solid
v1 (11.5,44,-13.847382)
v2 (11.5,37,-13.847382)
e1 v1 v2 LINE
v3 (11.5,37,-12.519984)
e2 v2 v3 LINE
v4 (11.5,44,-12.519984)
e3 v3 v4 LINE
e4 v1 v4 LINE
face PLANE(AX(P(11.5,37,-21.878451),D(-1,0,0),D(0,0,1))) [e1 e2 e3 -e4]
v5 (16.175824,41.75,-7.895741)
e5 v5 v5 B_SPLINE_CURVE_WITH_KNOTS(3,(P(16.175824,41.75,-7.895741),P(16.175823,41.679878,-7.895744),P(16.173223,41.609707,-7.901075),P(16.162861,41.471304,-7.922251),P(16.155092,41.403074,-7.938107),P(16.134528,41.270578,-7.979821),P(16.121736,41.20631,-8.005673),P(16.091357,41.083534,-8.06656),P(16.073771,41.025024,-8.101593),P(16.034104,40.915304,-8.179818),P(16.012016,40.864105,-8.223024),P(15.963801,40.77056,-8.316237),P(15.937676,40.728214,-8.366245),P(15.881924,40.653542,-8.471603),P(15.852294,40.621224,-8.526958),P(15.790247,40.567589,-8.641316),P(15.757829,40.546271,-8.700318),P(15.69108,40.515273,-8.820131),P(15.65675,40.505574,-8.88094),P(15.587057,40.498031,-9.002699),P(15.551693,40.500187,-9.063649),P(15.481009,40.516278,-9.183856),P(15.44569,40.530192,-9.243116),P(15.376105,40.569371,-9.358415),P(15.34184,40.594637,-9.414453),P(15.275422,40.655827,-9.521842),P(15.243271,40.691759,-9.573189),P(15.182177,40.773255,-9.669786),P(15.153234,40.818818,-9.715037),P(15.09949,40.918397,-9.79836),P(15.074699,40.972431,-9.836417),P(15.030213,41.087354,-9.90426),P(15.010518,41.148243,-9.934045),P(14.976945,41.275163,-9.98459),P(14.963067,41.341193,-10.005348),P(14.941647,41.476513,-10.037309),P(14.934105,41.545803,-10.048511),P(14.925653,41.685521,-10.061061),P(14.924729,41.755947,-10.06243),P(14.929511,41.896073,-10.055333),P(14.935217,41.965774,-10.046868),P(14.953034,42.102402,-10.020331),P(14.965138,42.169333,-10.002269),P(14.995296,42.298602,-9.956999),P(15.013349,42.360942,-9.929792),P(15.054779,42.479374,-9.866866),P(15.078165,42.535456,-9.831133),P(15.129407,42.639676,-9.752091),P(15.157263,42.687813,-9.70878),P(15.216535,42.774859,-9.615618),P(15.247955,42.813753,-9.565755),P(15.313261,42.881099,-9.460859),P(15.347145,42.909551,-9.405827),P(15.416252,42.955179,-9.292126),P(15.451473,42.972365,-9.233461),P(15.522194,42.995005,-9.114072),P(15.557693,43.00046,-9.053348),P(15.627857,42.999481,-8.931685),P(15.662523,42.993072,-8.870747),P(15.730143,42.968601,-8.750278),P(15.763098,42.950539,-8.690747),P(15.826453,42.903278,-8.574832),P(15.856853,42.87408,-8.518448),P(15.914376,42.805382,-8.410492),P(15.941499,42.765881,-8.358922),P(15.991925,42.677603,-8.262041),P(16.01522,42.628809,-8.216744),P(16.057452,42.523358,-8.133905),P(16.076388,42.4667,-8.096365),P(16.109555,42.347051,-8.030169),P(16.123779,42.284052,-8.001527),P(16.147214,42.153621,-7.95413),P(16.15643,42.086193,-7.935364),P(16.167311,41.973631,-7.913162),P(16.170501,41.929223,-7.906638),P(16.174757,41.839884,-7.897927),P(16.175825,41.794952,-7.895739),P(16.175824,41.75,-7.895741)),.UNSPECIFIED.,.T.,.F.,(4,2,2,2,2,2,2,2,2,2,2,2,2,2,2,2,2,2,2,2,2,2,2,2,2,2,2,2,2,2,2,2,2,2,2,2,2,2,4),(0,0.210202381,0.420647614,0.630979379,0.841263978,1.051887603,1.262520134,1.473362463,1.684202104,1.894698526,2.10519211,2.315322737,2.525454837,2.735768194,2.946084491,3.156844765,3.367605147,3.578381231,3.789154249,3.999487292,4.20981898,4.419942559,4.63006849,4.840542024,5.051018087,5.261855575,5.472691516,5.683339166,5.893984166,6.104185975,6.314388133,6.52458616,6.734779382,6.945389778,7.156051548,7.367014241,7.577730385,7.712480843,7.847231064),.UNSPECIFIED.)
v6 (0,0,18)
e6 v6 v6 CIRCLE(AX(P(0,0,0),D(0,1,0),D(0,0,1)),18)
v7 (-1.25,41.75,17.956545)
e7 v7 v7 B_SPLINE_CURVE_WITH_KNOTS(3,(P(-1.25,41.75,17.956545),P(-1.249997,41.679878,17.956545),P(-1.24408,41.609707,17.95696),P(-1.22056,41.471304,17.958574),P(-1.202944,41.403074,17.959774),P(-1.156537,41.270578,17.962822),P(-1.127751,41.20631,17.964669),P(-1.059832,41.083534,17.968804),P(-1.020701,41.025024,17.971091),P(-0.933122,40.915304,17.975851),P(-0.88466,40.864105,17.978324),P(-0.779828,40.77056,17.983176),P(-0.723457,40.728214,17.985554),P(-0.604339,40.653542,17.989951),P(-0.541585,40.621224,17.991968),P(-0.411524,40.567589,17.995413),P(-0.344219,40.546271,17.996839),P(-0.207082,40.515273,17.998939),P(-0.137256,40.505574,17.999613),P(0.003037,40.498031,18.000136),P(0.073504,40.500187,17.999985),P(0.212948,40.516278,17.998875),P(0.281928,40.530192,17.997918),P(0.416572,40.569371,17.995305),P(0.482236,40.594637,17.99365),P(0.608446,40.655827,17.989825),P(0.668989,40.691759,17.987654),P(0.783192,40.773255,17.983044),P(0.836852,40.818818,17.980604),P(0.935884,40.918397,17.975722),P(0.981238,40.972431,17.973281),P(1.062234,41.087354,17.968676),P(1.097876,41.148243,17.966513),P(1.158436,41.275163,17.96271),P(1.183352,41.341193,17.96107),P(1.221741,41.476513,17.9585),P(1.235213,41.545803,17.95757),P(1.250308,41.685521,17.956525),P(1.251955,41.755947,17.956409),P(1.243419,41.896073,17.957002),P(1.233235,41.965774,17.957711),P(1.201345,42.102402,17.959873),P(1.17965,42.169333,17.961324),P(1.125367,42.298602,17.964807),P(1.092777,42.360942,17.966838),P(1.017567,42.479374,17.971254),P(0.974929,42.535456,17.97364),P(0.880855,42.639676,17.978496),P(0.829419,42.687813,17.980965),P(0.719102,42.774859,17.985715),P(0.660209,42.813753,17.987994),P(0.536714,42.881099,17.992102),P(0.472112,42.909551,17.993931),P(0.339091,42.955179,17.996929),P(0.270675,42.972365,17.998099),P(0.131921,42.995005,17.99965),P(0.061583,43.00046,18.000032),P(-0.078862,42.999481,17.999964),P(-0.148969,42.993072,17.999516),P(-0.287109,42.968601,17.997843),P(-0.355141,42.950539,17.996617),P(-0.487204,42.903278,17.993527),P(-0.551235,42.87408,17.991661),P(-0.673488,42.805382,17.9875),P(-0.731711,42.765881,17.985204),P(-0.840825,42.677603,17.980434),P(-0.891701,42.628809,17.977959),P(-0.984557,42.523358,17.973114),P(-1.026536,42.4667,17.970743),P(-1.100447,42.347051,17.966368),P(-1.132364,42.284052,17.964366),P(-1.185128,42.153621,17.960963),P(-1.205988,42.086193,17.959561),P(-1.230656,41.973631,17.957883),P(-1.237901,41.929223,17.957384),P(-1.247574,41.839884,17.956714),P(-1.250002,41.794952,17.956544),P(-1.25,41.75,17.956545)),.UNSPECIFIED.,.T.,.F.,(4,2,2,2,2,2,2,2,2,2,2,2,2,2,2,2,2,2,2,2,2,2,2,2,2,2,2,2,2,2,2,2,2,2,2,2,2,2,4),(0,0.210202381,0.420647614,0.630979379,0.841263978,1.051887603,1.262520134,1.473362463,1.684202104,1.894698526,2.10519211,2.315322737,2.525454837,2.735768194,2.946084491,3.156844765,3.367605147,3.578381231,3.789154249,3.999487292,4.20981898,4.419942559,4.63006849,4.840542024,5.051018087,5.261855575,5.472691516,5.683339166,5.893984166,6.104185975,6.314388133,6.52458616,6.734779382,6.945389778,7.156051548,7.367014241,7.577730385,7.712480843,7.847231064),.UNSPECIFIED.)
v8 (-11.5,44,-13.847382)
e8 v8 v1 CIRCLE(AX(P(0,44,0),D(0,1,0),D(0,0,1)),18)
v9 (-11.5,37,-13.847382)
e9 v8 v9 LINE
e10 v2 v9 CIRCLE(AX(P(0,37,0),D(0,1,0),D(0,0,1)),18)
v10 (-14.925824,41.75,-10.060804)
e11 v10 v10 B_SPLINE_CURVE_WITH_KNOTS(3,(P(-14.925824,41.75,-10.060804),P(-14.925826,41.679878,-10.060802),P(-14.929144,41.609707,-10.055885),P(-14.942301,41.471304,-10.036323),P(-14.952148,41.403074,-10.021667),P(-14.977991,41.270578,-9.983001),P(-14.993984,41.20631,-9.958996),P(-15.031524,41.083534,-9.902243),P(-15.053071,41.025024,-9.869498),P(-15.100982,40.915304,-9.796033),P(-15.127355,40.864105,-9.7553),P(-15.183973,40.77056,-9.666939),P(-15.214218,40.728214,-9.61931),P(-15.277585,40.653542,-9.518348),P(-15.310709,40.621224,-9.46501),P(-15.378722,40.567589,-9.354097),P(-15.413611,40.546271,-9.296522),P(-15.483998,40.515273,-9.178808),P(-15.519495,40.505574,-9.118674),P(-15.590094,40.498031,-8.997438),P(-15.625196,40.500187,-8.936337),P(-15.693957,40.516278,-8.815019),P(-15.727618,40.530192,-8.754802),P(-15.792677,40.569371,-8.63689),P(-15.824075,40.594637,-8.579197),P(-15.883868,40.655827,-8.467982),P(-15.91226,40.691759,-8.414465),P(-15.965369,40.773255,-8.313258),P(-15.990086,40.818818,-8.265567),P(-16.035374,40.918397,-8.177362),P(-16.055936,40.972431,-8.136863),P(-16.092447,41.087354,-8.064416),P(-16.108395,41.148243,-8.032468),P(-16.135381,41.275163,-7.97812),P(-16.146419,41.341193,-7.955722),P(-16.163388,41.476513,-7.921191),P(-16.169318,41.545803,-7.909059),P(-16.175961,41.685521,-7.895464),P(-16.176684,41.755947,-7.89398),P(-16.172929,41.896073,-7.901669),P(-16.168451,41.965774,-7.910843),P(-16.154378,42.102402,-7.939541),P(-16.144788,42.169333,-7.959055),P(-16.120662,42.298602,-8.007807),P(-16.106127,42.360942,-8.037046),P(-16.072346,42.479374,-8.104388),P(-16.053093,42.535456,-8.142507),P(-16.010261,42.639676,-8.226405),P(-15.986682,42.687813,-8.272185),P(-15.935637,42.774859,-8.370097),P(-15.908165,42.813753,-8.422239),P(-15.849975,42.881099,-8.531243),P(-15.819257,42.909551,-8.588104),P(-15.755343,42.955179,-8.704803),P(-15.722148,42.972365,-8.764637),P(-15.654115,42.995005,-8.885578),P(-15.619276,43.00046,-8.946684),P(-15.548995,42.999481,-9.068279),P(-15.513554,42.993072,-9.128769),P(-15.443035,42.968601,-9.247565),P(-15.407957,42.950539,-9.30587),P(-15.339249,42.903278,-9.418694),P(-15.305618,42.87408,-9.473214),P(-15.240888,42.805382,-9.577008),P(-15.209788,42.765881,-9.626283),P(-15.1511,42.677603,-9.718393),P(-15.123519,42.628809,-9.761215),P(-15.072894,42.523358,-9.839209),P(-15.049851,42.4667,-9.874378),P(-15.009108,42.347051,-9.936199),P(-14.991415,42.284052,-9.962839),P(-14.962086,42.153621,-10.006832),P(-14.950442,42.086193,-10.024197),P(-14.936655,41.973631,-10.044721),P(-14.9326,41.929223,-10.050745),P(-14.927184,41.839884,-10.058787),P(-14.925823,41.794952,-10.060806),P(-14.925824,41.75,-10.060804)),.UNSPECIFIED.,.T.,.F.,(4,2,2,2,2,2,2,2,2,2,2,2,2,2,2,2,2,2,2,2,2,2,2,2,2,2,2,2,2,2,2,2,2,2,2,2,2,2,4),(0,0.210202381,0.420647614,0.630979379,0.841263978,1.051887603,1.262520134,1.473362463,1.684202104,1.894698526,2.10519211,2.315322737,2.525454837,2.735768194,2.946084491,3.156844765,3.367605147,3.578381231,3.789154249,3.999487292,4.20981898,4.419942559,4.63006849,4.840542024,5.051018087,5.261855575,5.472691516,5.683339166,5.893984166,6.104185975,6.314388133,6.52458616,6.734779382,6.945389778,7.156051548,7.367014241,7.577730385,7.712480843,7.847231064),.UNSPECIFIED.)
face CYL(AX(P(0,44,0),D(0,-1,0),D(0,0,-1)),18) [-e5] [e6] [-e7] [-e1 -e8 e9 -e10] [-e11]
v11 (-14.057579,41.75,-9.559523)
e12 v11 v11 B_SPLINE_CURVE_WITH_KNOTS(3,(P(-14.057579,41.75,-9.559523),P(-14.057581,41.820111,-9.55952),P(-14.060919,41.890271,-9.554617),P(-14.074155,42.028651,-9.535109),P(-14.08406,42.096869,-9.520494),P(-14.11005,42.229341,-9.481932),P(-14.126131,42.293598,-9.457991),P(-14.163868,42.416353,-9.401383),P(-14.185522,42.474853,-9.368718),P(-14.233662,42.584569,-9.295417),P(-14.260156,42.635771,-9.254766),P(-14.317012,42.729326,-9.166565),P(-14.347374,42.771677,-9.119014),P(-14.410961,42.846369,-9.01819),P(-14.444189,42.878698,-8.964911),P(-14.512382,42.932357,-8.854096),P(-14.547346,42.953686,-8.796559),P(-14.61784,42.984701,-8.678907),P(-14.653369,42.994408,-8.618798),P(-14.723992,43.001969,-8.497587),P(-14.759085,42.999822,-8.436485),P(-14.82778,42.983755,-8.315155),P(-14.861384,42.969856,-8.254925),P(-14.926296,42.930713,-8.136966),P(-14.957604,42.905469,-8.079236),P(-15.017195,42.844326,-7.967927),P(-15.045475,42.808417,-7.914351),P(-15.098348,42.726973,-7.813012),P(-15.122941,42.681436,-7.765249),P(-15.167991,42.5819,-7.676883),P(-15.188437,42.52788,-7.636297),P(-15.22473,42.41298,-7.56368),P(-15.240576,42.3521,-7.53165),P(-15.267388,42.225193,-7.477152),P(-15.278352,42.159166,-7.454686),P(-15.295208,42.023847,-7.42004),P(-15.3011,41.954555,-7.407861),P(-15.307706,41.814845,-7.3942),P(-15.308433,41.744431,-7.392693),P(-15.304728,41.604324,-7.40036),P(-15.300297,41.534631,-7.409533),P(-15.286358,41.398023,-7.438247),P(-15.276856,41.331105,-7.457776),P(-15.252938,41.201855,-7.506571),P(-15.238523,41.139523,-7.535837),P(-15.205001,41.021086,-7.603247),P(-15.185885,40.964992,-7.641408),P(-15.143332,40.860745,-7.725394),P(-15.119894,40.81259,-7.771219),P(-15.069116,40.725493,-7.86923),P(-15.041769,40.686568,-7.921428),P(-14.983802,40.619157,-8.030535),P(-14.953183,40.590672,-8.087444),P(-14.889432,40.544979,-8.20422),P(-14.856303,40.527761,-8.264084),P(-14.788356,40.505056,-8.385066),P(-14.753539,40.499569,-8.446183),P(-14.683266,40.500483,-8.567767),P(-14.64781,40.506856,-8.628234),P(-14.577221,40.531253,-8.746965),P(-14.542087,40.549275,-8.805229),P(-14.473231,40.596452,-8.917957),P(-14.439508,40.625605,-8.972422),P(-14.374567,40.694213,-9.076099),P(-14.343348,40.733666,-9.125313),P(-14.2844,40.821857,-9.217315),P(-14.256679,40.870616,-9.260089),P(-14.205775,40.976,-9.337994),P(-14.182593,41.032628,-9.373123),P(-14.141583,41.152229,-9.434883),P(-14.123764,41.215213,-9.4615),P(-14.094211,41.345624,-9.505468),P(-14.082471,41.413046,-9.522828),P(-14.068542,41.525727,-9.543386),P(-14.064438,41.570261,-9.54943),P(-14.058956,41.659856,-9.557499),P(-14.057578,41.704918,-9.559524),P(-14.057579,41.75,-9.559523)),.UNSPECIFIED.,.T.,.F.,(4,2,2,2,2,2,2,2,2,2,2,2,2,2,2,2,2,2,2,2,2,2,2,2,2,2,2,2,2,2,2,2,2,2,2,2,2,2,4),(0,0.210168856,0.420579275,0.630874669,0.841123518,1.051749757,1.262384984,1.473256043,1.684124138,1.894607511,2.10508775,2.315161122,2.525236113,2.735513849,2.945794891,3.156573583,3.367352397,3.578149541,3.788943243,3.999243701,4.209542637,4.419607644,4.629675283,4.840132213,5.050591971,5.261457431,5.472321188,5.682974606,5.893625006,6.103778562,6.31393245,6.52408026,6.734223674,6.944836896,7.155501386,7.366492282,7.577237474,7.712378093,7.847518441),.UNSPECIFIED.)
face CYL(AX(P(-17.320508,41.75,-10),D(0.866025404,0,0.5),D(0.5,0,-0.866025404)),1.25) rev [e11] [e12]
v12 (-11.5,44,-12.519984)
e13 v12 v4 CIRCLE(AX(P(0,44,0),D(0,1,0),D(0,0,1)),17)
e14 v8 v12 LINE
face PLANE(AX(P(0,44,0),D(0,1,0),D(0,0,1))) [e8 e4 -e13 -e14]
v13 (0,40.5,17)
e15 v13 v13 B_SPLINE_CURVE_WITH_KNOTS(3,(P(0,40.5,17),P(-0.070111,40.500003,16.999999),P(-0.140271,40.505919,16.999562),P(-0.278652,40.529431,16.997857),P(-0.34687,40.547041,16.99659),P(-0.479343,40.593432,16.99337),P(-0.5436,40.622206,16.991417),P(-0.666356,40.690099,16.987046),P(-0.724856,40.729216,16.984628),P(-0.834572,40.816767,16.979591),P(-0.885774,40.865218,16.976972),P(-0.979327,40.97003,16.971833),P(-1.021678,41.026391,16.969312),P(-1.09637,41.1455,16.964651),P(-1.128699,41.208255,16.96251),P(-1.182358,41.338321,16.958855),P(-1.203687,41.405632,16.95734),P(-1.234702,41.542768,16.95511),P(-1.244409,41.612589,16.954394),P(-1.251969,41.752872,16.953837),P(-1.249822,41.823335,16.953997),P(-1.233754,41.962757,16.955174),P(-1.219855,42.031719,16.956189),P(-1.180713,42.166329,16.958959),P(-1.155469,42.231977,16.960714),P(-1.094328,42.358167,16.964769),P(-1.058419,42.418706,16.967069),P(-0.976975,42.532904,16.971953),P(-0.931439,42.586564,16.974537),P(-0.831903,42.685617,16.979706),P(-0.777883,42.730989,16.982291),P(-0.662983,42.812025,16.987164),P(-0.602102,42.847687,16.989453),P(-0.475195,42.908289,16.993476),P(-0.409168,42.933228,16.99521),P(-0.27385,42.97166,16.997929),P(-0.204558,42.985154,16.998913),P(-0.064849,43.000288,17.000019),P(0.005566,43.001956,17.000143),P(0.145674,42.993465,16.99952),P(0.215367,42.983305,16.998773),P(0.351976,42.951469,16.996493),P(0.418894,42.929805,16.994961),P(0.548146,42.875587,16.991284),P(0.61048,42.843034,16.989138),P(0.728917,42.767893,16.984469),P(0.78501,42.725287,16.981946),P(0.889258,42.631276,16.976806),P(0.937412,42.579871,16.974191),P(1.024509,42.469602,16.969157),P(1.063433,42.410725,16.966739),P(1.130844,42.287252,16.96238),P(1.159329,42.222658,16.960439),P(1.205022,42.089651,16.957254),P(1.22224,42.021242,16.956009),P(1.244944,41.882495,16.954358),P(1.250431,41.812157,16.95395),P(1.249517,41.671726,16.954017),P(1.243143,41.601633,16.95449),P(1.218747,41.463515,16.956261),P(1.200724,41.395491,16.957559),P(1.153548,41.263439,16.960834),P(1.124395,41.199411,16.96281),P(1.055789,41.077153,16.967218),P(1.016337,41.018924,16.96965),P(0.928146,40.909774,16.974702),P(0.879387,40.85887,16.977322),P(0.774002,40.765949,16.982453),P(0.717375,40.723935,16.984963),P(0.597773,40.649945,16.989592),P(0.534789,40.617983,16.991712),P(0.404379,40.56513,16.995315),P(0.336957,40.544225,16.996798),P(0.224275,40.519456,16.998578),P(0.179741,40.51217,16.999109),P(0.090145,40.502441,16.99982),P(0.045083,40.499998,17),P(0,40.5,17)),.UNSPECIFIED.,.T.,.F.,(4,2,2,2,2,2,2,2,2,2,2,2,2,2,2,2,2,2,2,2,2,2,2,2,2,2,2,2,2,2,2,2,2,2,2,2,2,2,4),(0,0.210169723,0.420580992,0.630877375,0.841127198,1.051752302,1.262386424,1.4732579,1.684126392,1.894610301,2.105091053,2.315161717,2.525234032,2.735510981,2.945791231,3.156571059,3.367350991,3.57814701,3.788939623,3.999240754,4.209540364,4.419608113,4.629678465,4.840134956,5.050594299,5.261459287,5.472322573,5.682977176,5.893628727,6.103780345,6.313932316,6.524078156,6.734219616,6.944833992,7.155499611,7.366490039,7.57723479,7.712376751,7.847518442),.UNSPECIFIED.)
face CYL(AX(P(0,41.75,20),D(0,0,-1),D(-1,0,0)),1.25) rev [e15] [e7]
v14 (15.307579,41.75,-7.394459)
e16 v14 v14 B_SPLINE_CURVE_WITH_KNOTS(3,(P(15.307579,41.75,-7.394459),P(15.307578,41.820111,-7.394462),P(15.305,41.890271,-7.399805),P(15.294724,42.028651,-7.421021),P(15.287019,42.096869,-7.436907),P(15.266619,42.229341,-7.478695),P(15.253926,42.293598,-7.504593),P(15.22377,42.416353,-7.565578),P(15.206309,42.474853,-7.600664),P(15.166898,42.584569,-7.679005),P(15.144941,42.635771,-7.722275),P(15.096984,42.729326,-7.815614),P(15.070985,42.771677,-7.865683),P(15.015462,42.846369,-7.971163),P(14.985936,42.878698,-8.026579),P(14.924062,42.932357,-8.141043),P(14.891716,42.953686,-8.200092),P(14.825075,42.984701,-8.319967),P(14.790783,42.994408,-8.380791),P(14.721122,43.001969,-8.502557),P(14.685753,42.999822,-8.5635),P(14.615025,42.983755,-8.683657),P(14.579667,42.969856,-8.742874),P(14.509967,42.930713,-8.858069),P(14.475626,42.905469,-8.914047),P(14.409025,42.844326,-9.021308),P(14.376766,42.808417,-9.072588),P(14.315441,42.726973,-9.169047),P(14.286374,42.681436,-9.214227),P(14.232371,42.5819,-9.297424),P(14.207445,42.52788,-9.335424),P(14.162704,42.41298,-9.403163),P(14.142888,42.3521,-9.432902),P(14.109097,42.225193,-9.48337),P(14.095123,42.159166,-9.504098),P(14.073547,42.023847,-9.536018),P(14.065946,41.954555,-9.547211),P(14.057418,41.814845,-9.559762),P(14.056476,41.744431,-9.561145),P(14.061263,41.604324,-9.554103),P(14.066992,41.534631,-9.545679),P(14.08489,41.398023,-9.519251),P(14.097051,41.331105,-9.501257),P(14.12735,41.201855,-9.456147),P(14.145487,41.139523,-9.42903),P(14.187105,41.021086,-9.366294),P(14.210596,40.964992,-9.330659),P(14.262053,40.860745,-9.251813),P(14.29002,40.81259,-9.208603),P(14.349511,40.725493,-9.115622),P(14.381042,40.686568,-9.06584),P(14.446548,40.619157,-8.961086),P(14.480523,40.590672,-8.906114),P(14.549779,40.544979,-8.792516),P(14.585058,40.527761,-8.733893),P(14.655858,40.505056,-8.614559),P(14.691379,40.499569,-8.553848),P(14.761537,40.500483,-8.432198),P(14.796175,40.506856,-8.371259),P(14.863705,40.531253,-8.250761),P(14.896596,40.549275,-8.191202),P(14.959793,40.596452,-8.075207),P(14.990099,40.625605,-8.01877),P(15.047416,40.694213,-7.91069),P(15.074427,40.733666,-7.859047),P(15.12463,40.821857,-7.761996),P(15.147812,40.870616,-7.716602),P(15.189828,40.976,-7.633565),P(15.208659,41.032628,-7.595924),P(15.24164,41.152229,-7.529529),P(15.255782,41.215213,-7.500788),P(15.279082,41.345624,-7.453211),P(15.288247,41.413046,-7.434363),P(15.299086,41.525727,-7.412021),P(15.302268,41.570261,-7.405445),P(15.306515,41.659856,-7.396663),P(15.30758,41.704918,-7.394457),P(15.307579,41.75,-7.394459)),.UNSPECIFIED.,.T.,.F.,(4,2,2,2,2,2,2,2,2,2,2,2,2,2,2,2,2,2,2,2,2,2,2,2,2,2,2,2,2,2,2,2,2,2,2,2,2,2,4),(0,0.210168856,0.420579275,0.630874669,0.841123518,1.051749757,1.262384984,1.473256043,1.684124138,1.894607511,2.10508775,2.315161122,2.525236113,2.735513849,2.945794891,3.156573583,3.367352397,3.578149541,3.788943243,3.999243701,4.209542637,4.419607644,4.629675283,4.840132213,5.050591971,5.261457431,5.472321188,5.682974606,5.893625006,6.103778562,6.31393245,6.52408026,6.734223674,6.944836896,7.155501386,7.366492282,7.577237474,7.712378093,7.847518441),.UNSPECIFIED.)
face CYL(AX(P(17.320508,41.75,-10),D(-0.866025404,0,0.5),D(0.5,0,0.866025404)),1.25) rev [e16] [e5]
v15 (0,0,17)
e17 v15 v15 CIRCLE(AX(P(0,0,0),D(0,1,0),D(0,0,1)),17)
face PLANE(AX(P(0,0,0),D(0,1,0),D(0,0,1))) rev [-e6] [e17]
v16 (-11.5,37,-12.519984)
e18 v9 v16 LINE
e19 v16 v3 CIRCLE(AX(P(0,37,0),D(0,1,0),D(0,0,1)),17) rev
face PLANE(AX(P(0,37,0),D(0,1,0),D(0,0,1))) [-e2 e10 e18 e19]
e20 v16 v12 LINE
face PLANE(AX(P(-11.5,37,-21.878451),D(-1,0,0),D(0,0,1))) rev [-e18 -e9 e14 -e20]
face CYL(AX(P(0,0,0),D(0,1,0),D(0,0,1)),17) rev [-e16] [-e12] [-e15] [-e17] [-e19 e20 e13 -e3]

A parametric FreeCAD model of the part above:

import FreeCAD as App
import Part
import Sketcher
from FreeCAD import Vector

doc = App.newDocument("Part")
params = doc.addObject("Spreadsheet::Sheet", "Params")
for row, (alias, value) in enumerate([
    ("sketch1_diameter", "36 mm"),
    ("pad1_length", "44 mm"),
    ("sketch2_diameter", "34 mm"),
    ("sketch3_width", "23 mm"),
    ("pocket2_length", "7 mm"),
    ("sketch4_diameter", "2.5 mm"),
    ("pocket3_length", "20 mm"),
], start=1):
    params.set(f"A{row}", alias)
    params.set(f"B{row}", "=" + value)
    params.setAlias(f"B{row}", alias)

body = doc.addObject("PartDesign::Body", "Body")

# Sketch on XZ plane
sketch1 = doc.addObject("Sketcher::SketchObject", "Sketch")
body.addObject(sketch1)
sketch1.AttachmentSupport = (doc.XZ_Plane, [""])
sketch1.MapMode = "FlatFace"
sketch1.addGeometry(Part.Circle(Vector(0, 0, 0), Vector(0, 0, 1), 18), False)
sketch1.addConstraint([
    Sketcher.Constraint("Coincident", 0, 3, -1, 1),
    Sketcher.Constraint("Diameter", 0, 36.0),
])
sketch1.setExpression("Constraints[1]", "Params.sketch1_diameter")
pad1 = doc.addObject("PartDesign::Pad", "Pad")
body.addObject(pad1)
pad1.Profile = sketch1
pad1.setExpression("Length", "Params.pad1_length")
pad1.Reversed = True

# Sketch on XZ plane
sketch2 = doc.addObject("Sketcher::SketchObject", "Sketch001")
body.addObject(sketch2)
sketch2.AttachmentSupport = (doc.XZ_Plane, [""])
sketch2.MapMode = "FlatFace"
sketch2.AttachmentOffset = App.Placement(Vector(0, 0, -44), App.Rotation())
sketch2.addGeometry(Part.Circle(Vector(0, 0, 0), Vector(0, 0, 1), 17), False)
sketch2.addConstraint([
    Sketcher.Constraint("Coincident", 0, 3, -1, 1),
    Sketcher.Constraint("Diameter", 0, 34.0),
])
sketch2.setExpression("Constraints[1]", "Params.sketch2_diameter")
pocket1 = doc.addObject("PartDesign::Pocket", "Pocket")
body.addObject(pocket1)
pocket1.Profile = sketch2
pocket1.Type = "ThroughAll"
pocket1.Reversed = True

# Sketch on XZ plane
sketch3 = doc.addObject("Sketcher::SketchObject", "Sketch002")
body.addObject(sketch3)
sketch3.AttachmentSupport = (doc.XZ_Plane, [""])
sketch3.MapMode = "FlatFace"
sketch3.AttachmentOffset = App.Placement(Vector(0, 0, -44), App.Rotation())
sketch3.addGeometry([
    Part.LineSegment(Vector(-11.5, -21.878451, 0), Vector(-11.5, -6.236893, 0)),
    Part.LineSegment(Vector(-11.5, -6.236893, 0), Vector(11.5, -6.236893, 0)),
    Part.LineSegment(Vector(11.5, -6.236893, 0), Vector(11.5, -21.878451, 0)),
    Part.LineSegment(Vector(11.5, -21.878451, 0), Vector(-11.5, -21.878451, 0)),
], False)
sketch3.addConstraint([
    Sketcher.Constraint("Coincident", 0, 2, 1, 1),
    Sketcher.Constraint("Coincident", 1, 2, 2, 1),
    Sketcher.Constraint("Coincident", 2, 2, 3, 1),
    Sketcher.Constraint("Coincident", 3, 2, 0, 1),
    Sketcher.Constraint("Vertical", 0),
    Sketcher.Constraint("Horizontal", 1),
    Sketcher.Constraint("Vertical", 2),
    Sketcher.Constraint("Horizontal", 3),
    Sketcher.Constraint("DistanceX", 1, 1, 1, 2, 23.0),
    Sketcher.Constraint("DistanceX", 0, 2, -1, 1, 11.5),
    Sketcher.Constraint("DistanceY", 0, 1, 0, 2, 15.641557),
    Sketcher.Constraint("DistanceY", 2, 2, -1, 1, 21.878451),
])
sketch3.setExpression("Constraints[8]", "Params.sketch3_width")
pocket2 = doc.addObject("PartDesign::Pocket", "Pocket001")
body.addObject(pocket2)
pocket2.Profile = sketch3
pocket2.setExpression("Length", "Params.pocket2_length")
pocket2.Reversed = True

# Sketch on XY plane
sketch4 = doc.addObject("Sketcher::SketchObject", "Sketch003")
body.addObject(sketch4)
sketch4.AttachmentSupport = (doc.XY_Plane, [""])
sketch4.MapMode = "FlatFace"
sketch4.addGeometry(Part.Circle(Vector(0, 41.75, 0), Vector(0, 0, 1), 1.25), False)
sketch4.addConstraint([
    Sketcher.Constraint("PointOnObject", 0, 3, -2),
    Sketcher.Constraint("Diameter", 0, 2.5),
    Sketcher.Constraint("DistanceY", -1, 1, 0, 3, 41.75),
])
sketch4.setExpression("Constraints[1]", "Params.sketch4_diameter")
pocket3 = doc.addObject("PartDesign::Pocket", "Pocket002")
body.addObject(pocket3)
pocket3.Profile = sketch4
pocket3.setExpression("Length", "Params.pocket3_length")
pocket3.Reversed = True
doc.recompute()

polarpattern = doc.addObject("PartDesign::PolarPattern", "PolarPattern")
body.addObject(polarpattern)
polarpattern.Originals = [pocket3]
polarpattern.Axis = (doc.Y_Axis, [""])
polarpattern.Angle = 360
polarpattern.Occurrences = 3
body.Tip = polarpattern

doc.recompute()
